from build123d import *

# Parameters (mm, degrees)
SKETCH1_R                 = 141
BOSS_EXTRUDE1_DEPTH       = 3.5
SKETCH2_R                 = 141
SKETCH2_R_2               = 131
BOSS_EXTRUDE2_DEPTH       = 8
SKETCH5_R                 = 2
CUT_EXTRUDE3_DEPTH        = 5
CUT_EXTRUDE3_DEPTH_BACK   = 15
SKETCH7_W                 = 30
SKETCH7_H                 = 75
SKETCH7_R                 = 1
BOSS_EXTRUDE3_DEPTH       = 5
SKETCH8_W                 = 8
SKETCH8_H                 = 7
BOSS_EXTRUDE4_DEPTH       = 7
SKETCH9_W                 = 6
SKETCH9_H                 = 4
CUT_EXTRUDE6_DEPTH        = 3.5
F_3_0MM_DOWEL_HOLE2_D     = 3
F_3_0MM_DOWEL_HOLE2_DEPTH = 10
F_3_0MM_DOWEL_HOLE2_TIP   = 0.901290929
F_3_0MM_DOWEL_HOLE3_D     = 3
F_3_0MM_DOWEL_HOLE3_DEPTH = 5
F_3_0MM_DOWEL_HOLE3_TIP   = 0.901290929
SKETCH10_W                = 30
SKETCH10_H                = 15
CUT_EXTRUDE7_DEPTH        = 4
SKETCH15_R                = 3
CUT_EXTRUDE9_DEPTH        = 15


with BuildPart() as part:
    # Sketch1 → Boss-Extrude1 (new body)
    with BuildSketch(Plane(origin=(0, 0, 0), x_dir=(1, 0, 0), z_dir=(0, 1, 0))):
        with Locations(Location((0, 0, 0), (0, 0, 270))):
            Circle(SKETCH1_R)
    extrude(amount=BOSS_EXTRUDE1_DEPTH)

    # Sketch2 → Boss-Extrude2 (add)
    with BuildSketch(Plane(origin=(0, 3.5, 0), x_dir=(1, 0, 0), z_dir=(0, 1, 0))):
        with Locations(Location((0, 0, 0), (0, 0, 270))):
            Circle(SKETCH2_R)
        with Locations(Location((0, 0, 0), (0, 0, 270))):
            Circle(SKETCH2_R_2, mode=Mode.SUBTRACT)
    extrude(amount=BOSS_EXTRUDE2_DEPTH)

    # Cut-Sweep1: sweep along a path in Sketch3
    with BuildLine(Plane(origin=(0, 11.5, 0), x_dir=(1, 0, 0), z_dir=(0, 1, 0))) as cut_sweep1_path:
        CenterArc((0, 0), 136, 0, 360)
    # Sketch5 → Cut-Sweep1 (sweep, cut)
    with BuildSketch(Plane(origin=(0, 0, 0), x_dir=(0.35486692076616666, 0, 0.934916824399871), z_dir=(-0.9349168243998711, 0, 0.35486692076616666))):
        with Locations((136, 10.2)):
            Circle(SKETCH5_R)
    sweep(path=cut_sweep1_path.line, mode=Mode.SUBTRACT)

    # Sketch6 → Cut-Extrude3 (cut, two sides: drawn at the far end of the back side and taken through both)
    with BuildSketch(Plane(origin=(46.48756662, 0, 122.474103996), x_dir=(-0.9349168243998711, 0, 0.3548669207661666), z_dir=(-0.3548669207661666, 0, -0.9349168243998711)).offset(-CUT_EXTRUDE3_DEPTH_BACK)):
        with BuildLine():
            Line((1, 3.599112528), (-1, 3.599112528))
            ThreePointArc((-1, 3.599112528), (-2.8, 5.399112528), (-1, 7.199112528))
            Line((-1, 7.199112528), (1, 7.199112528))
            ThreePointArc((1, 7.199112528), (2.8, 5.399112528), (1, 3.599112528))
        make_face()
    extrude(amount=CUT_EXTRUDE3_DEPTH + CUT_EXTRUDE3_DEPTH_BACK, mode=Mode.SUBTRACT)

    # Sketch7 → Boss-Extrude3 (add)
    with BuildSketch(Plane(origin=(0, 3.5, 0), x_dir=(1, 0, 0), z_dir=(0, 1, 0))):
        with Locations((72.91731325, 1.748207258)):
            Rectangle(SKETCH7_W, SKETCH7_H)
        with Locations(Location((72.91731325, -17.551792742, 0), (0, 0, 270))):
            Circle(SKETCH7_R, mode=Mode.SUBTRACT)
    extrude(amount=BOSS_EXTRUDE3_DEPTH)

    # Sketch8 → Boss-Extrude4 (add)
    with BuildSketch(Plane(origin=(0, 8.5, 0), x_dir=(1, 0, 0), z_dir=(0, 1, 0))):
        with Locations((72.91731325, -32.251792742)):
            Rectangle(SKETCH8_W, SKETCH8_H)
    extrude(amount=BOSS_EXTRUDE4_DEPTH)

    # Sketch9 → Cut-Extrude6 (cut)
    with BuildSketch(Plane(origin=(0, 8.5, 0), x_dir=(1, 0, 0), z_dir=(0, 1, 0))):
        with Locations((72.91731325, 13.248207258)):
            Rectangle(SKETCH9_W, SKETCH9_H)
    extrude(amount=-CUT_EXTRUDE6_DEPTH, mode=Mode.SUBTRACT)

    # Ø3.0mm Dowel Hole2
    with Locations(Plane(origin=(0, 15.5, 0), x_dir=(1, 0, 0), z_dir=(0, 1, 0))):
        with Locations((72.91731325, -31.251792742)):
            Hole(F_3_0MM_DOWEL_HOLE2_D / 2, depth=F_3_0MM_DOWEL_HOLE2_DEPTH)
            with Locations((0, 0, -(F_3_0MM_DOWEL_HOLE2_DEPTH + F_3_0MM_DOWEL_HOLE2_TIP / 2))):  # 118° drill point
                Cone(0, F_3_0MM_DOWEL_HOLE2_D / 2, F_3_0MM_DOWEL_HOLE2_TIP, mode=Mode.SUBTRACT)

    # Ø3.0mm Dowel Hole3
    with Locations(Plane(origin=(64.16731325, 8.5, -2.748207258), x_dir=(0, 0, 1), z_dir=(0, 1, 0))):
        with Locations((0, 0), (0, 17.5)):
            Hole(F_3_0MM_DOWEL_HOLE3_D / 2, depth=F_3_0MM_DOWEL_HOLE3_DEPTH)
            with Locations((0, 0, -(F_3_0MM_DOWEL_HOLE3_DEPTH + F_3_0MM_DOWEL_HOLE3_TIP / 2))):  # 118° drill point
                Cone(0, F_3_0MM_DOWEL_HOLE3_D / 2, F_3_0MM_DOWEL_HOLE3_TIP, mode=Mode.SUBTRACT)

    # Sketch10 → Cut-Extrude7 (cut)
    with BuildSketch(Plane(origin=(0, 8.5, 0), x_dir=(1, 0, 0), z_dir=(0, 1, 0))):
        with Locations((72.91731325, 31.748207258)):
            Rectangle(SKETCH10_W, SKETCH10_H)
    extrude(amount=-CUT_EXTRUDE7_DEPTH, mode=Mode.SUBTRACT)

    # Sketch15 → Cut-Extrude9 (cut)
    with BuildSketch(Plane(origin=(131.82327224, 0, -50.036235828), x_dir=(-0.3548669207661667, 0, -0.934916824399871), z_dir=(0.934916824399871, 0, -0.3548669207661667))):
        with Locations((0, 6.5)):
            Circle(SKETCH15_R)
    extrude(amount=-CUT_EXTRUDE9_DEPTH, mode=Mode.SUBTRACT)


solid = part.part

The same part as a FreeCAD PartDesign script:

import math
import FreeCAD as App
import Part
import Sketcher
Q = App.Units.Quantity

doc = App.newDocument("Part")
body = doc.addObject("PartDesign::Body", "Body")

sketch1 = doc.addObject("Sketcher::SketchObject", "Sketch")
body.addObject(sketch1)
sketch1.AttachmentSupport = (doc.XZ_Plane, [""])
sketch1.MapMode = "FlatFace"
sketch1.addGeometry(Part.Circle(App.Vector(0, 0, 0), App.Vector(0, 0, 1), 141), False)
sketch1.addConstraint([
    Sketcher.Constraint("Coincident", 0, 3, -1, 1),
    Sketcher.Constraint("Diameter", 0, Q("282 mm")),
])
pad1 = doc.addObject("PartDesign::Pad", "Pad")
body.addObject(pad1)
pad1.Profile = sketch1
pad1.Length = 3.5
pad1.Reversed = True

sketch2 = doc.addObject("Sketcher::SketchObject", "Sketch001")
body.addObject(sketch2)
sketch2.AttachmentSupport = (doc.XZ_Plane, [""])
sketch2.MapMode = "FlatFace"
sketch2.AttachmentOffset = App.Placement(App.Vector(0, 0, -3.5), App.Rotation())
sketch2.addGeometry([
    Part.Circle(App.Vector(0, 0, 0), App.Vector(0, 0, 1), 141),
    Part.Circle(App.Vector(0, 0, 0), App.Vector(0, 0, 1), 131),
], False)
sketch2.addConstraint([
    Sketcher.Constraint("Coincident", 0, 3, -1, 1),
    Sketcher.Constraint("Coincident", 1, 3, -1, 1),
    Sketcher.Constraint("Diameter", 0, Q("282 mm")),
    Sketcher.Constraint("Diameter", 1, Q("262 mm")),
])
pad2 = doc.addObject("PartDesign::Pad", "Pad001")
body.addObject(pad2)
pad2.Profile = sketch2
pad2.Length = 8
pad2.Reversed = True

sketch3 = doc.addObject("Sketcher::SketchObject", "Sketch002")
body.addObject(sketch3)
sketch3.Placement = App.Placement(App.Vector(0, 0, 0), App.Rotation(App.Vector(0.354866921, 0, 0.934916824), App.Vector(0, 0.999999999, 0), App.Vector(-0.934916824, 0, 0.354866921), "ZXY"))
sketch3.addGeometry(Part.Circle(App.Vector(136, 10.2, 0), App.Vector(0, 0, 1), 2), False)
sketch3.addConstraint([
    Sketcher.Constraint("Diameter", 0, Q("4 mm")),
    Sketcher.Constraint("DistanceX", -1, 1, 0, 3, Q("136 mm")),
    Sketcher.Constraint("DistanceY", -1, 1, 0, 3, Q("10.2 mm")),
])

sketch4 = doc.addObject("Sketcher::SketchObject", "Sketch003")
body.addObject(sketch4)
sketch4.AttachmentSupport = (doc.XZ_Plane, [""])
sketch4.MapMode = "FlatFace"
sketch4.AttachmentOffset = App.Placement(App.Vector(0, 0, -11.5), App.Rotation())
sketch4.addGeometry(Part.Circle(App.Vector(0, 0, 0), App.Vector(0, 0, 1), 136), False)
sketch4.addConstraint([
    Sketcher.Constraint("Coincident", 0, 3, -1, 1),
    Sketcher.Constraint("Diameter", 0, Q("272 mm")),
])
doc.recompute()

subtractivepipe = doc.addObject("PartDesign::SubtractivePipe", "SubtractivePipe")
body.addObject(subtractivepipe)
subtractivepipe.Profile = sketch3
subtractivepipe.Spine = (sketch4, ["Edge1"])

sketch5 = doc.addObject("Sketcher::SketchObject", "Sketch004")
body.addObject(sketch5)
sketch5.Placement = App.Placement(App.Vector(46.487567, 0, 122.474104), App.Rotation(App.Vector(-0.934916824, 0, 0.354866921), App.Vector(0, 0.999999999, 0), App.Vector(-0.354866921, 0, -0.934916824), "ZXY"))
sketch5.addGeometry([
    Part.LineSegment(App.Vector(-1, 3.6, 0), App.Vector(1, 3.6, 0)),
    Part.ArcOfCircle(Part.Circle(App.Vector(1, 5.4, 0), App.Vector(0, 0, 1), 1.8), math.radians(-90), math.radians(90)),
    Part.LineSegment(App.Vector(1, 7.2, 0), App.Vector(-1, 7.2, 0)),
    Part.ArcOfCircle(Part.Circle(App.Vector(-1, 5.4, 0), App.Vector(0, 0, 1), 1.8), math.radians(90), math.radians(270)),
], False)
sketch5.addConstraint([
    Sketcher.Constraint("Tangent", 0, 2, 1, 1),
    Sketcher.Constraint("Tangent", 1, 2, 2, 1),
    Sketcher.Constraint("Tangent", 2, 2, 3, 1),
    Sketcher.Constraint("Tangent", 3, 2, 0, 1),
    Sketcher.Constraint("Horizontal", 0),
    Sketcher.Constraint("Horizontal", 2),
    Sketcher.Constraint("Radius", 1, Q("1.8 mm")),
    Sketcher.Constraint("DistanceX", 0, 1, 0, 2, Q("2 mm")),
    Sketcher.Constraint("DistanceX", -1, 1, 1, 3, Q("1 mm")),
    Sketcher.Constraint("DistanceY", -1, 1, 1, 3, Q("5.399113 mm")),
])
pocket1 = doc.addObject("PartDesign::Pocket", "Pocket")
body.addObject(pocket1)
pocket1.Profile = sketch5
pocket1.Type = "TwoLengths"
pocket1.Length = 5
pocket1.Length2 = 15
pocket1.Reversed = True

sketch6 = doc.addObject("Sketcher::SketchObject", "Sketch005")
body.addObject(sketch6)
sketch6.AttachmentSupport = (doc.XZ_Plane, [""])
sketch6.MapMode = "FlatFace"
sketch6.AttachmentOffset = App.Placement(App.Vector(0, 0, -3.5), App.Rotation())
sketch6.addGeometry([
    Part.LineSegment(App.Vector(57.9, -39.2, 0), App.Vector(57.9, 35.8, 0)),
    Part.LineSegment(App.Vector(57.9, 35.8, 0), App.Vector(87.9, 35.8, 0)),
    Part.LineSegment(App.Vector(87.9, 35.8, 0), App.Vector(87.9, -39.2, 0)),
    Part.LineSegment(App.Vector(87.9, -39.2, 0), App.Vector(57.9, -39.2, 0)),
    Part.Circle(App.Vector(72.9, 17.6, 0), App.Vector(0, 0, 1), 1),
], False)
sketch6.addConstraint([
    Sketcher.Constraint("Coincident", 0, 2, 1, 1),
    Sketcher.Constraint("Coincident", 1, 2, 2, 1),
    Sketcher.Constraint("Coincident", 2, 2, 3, 1),
    Sketcher.Constraint("Coincident", 3, 2, 0, 1),
    Sketcher.Constraint("Vertical", 0),
    Sketcher.Constraint("Horizontal", 1),
    Sketcher.Constraint("Vertical", 2),
    Sketcher.Constraint("Horizontal", 3),
    Sketcher.Constraint("Diameter", 4, Q("2 mm")),
    Sketcher.Constraint("DistanceX", 1, 1, 1, 2, Q("30 mm")),
    Sketcher.Constraint("DistanceY", 0, 1, 0, 2, Q("75 mm")),
    Sketcher.Constraint("DistanceX", 0, 2, 4, 3, Q("15 mm")),
    Sketcher.Constraint("DistanceY", 4, 3, 0, 2, Q("18.2 mm")),
    Sketcher.Constraint("DistanceX", -1, 1, 4, 3, Q("72.917313 mm")),
    Sketcher.Constraint("DistanceY", -1, 1, 4, 3, Q("17.551793 mm")),
])
pad3 = doc.addObject("PartDesign::Pad", "Pad002")
body.addObject(pad3)
pad3.Profile = sketch6
pad3.Length = 5
pad3.Reversed = True

sketch7 = doc.addObject("Sketcher::SketchObject", "Sketch006")
body.addObject(sketch7)
sketch7.AttachmentSupport = (doc.XZ_Plane, [""])
sketch7.MapMode = "FlatFace"
sketch7.AttachmentOffset = App.Placement(App.Vector(0, 0, -8.5), App.Rotation())
sketch7.addGeometry([
    Part.LineSegment(App.Vector(69, 29, 0), App.Vector(69, 36, 0)),
    Part.LineSegment(App.Vector(69, 36, 0), App.Vector(77, 36, 0)),
    Part.LineSegment(App.Vector(77, 36, 0), App.Vector(77, 29, 0)),
    Part.LineSegment(App.Vector(77, 29, 0), App.Vector(69, 29, 0)),
], False)
sketch7.addConstraint([
    Sketcher.Constraint("Coincident", 0, 2, 1, 1),
    Sketcher.Constraint("Coincident", 1, 2, 2, 1),
    Sketcher.Constraint("Coincident", 2, 2, 3, 1),
    Sketcher.Constraint("Coincident", 3, 2, 0, 1),
    Sketcher.Constraint("Vertical", 0),
    Sketcher.Constraint("Horizontal", 1),
    Sketcher.Constraint("Vertical", 2),
    Sketcher.Constraint("Horizontal", 3),
    Sketcher.Constraint("DistanceX", 1, 1, 1, 2, Q("8 mm")),
    Sketcher.Constraint("DistanceY", 0, 1, 0, 2, Q("7 mm")),
    Sketcher.Constraint("DistanceX", -1, 1, 0, 2, Q("68.917313 mm")),
    Sketcher.Constraint("DistanceY", -1, 1, 0, 2, Q("35.751793 mm")),
])
pad4 = doc.addObject("PartDesign::Pad", "Pad003")
body.addObject(pad4)
pad4.Profile = sketch7
pad4.Length = 7
pad4.Reversed = True

sketch8 = doc.addObject("Sketcher::SketchObject", "Sketch007")
body.addObject(sketch8)
sketch8.AttachmentSupport = (doc.XZ_Plane, [""])
sketch8.MapMode = "FlatFace"
sketch8.AttachmentOffset = App.Placement(App.Vector(0, 0, -8.5), App.Rotation())
sketch8.addGeometry([
    Part.LineSegment(App.Vector(69.9, -15.2, 0), App.Vector(69.9, -11.2, 0)),
    Part.LineSegment(App.Vector(69.9, -11.2, 0), App.Vector(75.9, -11.2, 0)),
    Part.LineSegment(App.Vector(75.9, -11.2, 0), App.Vector(75.9, -15.2, 0)),
    Part.LineSegment(App.Vector(75.9, -15.2, 0), App.Vector(69.9, -15.2, 0)),
], False)
sketch8.addConstraint([
    Sketcher.Constraint("Coincident", 0, 2, 1, 1),
    Sketcher.Constraint("Coincident", 1, 2, 2, 1),
    Sketcher.Constraint("Coincident", 2, 2, 3, 1),
    Sketcher.Constraint("Coincident", 3, 2, 0, 1),
    Sketcher.Constraint("Vertical", 0),
    Sketcher.Constraint("Horizontal", 1),
    Sketcher.Constraint("Vertical", 2),
    Sketcher.Constraint("Horizontal", 3),
    Sketcher.Constraint("DistanceX", 1, 1, 1, 2, Q("6 mm")),
    Sketcher.Constraint("DistanceY", 0, 1, 0, 2, Q("4 mm")),
    Sketcher.Constraint("DistanceX", -1, 1, 0, 2, Q("69.917313 mm")),
    Sketcher.Constraint("DistanceY", 0, 2, -1, 1, Q("11.248207 mm")),
])
pocket2 = doc.addObject("PartDesign::Pocket", "Pocket001")
body.addObject(pocket2)
pocket2.Profile = sketch8
pocket2.Length = 3.5
pocket2.Reversed = True

sketch9 = doc.addObject("Sketcher::SketchObject", "Sketch008")
body.addObject(sketch9)
sketch9.AttachmentSupport = (doc.XZ_Plane, [""])
sketch9.MapMode = "FlatFace"
sketch9.AttachmentOffset = App.Placement(App.Vector(0, 0, -15.5), App.Rotation())
sketch9.addGeometry(Part.Circle(App.Vector(72.9, 31.3, 0), App.Vector(0, 0, 1), 1.5), False)
sketch9.addConstraint([
    Sketcher.Constraint("Diameter", 0, Q("3 mm")),
    Sketcher.Constraint("DistanceX", -1, 1, 0, 3, Q("72.917313 mm")),
    Sketcher.Constraint("DistanceY", -1, 1, 0, 3, Q("31.251793 mm")),
])
doc.recompute()
hole = doc.addObject("PartDesign::Hole", "Hole")
body.addObject(hole)
hole.Profile = sketch9
hole.ThreadType = "None"
hole.Diameter = 3
hole.DepthType = "Dimension"
hole.Depth = 10
hole.DrillPoint = "Angled"
hole.DrillPointAngle = 118
hole.Reversed = True

sketch10 = doc.addObject("Sketcher::SketchObject", "Sketch009")
body.addObject(sketch10)
sketch10.AttachmentSupport = (doc.XZ_Plane, [""])
sketch10.MapMode = "FlatFace"
sketch10.AttachmentOffset = App.Placement(App.Vector(0, 0, -8.5), App.Rotation())
sketch10.addGeometry([
    Part.Circle(App.Vector(64.2, -2.7, 0), App.Vector(0, 0, 1), 1.5),
    Part.Circle(App.Vector(81.7, -2.7, 0), App.Vector(0, 0, 1), 1.5),
], False)
sketch10.addConstraint([
    Sketcher.Constraint("Equal", 0, 1),
    Sketcher.Constraint("Horizontal", 0, 3, 1, 3),
    Sketcher.Constraint("Diameter", 0, Q("3 mm")),
    Sketcher.Constraint("DistanceX", 0, 3, 1, 3, Q("17.5 mm")),
    Sketcher.Constraint("DistanceX", -1, 1, 0, 3, Q("64.167313 mm")),
    Sketcher.Constraint("DistanceY", 0, 3, -1, 1, Q("2.748207 mm")),
])
doc.recompute()
hole2 = doc.addObject("PartDesign::Hole", "Hole001")
body.addObject(hole2)
hole2.Profile = sketch10
hole2.ThreadType = "None"
hole2.Diameter = 3
hole2.DepthType = "Dimension"
hole2.Depth = 5
hole2.DrillPoint = "Angled"
hole2.DrillPointAngle = 118
hole2.Reversed = True

sketch11 = doc.addObject("Sketcher::SketchObject", "Sketch010")
body.addObject(sketch11)
sketch11.AttachmentSupport = (doc.XZ_Plane, [""])
sketch11.MapMode = "FlatFace"
sketch11.AttachmentOffset = App.Placement(App.Vector(0, 0, -8.5), App.Rotation())
sketch11.addGeometry([
    Part.LineSegment(App.Vector(58, -39, 0), App.Vector(58, -24, 0)),
    Part.LineSegment(App.Vector(58, -24, 0), App.Vector(88, -24, 0)),
    Part.LineSegment(App.Vector(88, -24, 0), App.Vector(88, -39, 0)),
    Part.LineSegment(App.Vector(88, -39, 0), App.Vector(58, -39, 0)),
], False)
sketch11.addConstraint([
    Sketcher.Constraint("Coincident", 0, 2, 1, 1),
    Sketcher.Constraint("Coincident", 1, 2, 2, 1),
    Sketcher.Constraint("Coincident", 2, 2, 3, 1),
    Sketcher.Constraint("Coincident", 3, 2, 0, 1),
    Sketcher.Constraint("Vertical", 0),
    Sketcher.Constraint("Horizontal", 1),
    Sketcher.Constraint("Vertical", 2),
    Sketcher.Constraint("Horizontal", 3),
    Sketcher.Constraint("DistanceX", 1, 1, 1, 2, Q("30 mm")),
    Sketcher.Constraint("DistanceY", 0, 1, 0, 2, Q("15 mm")),
    Sketcher.Constraint("DistanceX", -1, 1, 0, 2, Q("57.917313 mm")),
    Sketcher.Constraint("DistanceY", 0, 2, -1, 1, Q("24.248207 mm")),
])
pocket3 = doc.addObject("PartDesign::Pocket", "Pocket002")
body.addObject(pocket3)
pocket3.Profile = sketch11
pocket3.Length = 4
pocket3.Reversed = True

sketch12 = doc.addObject("Sketcher::SketchObject", "Sketch011")
body.addObject(sketch12)
sketch12.Placement = App.Placement(App.Vector(131.823272, 0, -50.036236), App.Rotation(App.Vector(-0.354866921, 0, -0.934916824), App.Vector(0, 0.999999999, 0), App.Vector(0.934916824, 0, -0.354866921), "ZXY"))
sketch12.addGeometry(Part.Circle(App.Vector(0, 6.5, 0), App.Vector(0, 0, 1), 3), False)
sketch12.addConstraint([
    Sketcher.Constraint("PointOnObject", 0, 3, -2),
    Sketcher.Constraint("Diameter", 0, Q("6 mm")),
    Sketcher.Constraint("DistanceY", -1, 1, 0, 3, Q("6.5 mm")),
])
pocket4 = doc.addObject("PartDesign::Pocket", "Pocket003")
body.addObject(pocket4)
pocket4.Profile = sketch12
pocket4.Length = 15

doc.recompute()
